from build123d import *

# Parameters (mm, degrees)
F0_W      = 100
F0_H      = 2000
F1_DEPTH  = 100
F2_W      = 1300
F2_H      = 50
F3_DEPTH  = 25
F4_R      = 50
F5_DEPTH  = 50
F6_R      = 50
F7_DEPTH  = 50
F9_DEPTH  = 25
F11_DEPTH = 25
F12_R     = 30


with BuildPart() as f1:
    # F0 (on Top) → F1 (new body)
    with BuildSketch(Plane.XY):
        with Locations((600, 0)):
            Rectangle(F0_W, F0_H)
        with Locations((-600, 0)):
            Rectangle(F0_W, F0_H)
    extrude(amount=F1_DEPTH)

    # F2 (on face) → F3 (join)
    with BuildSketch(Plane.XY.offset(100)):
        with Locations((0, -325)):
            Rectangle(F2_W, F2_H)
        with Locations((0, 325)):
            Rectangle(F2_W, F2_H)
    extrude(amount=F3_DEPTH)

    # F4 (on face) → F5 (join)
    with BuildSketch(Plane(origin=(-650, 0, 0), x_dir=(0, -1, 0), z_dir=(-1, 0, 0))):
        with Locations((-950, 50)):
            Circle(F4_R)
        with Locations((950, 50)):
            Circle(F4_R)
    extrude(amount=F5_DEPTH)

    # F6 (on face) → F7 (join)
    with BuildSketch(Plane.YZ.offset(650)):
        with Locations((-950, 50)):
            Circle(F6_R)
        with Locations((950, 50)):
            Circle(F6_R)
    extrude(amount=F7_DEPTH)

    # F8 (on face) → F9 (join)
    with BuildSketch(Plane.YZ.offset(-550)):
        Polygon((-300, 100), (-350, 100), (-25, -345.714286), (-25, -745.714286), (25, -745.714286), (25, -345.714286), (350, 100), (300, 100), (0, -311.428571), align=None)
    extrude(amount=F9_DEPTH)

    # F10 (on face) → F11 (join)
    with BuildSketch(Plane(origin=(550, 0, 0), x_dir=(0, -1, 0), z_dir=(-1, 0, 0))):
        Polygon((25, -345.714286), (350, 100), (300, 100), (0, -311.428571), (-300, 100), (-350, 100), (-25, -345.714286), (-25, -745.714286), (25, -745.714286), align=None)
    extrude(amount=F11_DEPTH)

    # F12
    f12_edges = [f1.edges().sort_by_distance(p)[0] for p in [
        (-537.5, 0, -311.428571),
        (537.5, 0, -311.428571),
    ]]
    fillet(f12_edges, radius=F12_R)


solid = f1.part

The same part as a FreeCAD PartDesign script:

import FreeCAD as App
import Part
import Sketcher

V = App.Vector
Q = App.Units.Quantity


def edges_at(feature, points):
    """Names of the edges that pass closest to the given points."""
    edges = feature.Shape.Edges
    near = lambda p: min(range(len(edges)), key=lambda i: edges[i].distToShape(Part.Vertex(*p))[0])
    return sorted({f"Edge{near(p) + 1}" for p in points})

doc = App.newDocument("Part")
params = doc.addObject("Spreadsheet::Sheet", "Params")
for row, (alias, value) in enumerate([
    ("sketch1_width", "100 mm"),
    ("sketch1_height", "2000 mm"),
    ("pad1_length", "100 mm"),
    ("sketch2_width", "1300 mm"),
    ("sketch2_height", "50 mm"),
    ("pad2_length", "25 mm"),
    ("sketch3_diameter", "100 mm"),
    ("pad3_length", "50 mm"),
    ("sketch4_diameter", "100 mm"),
    ("pad4_length", "50 mm"),
    ("sketch5_width", "50 mm"),
    ("sketch5_height", "400 mm"),
    ("pad5_length", "25 mm"),
    ("sketch6_width", "50 mm"),
    ("sketch6_height", "400 mm"),
    ("pad6_length", "25 mm"),
    ("fillet_radius", "30 mm"),
], start=1):
    params.set(f"A{row}", alias)
    params.set(f"B{row}", "=" + value)
    params.setAlias(f"B{row}", alias)

body = doc.addObject("PartDesign::Body", "Body")
body.AllowCompound = True

sketch1 = body.newObject("Sketcher::SketchObject", "Sketch")
sketch1.AttachmentSupport = (doc.getObject("XY_Plane"), [""])
sketch1.MapMode = "FlatFace"
sketch1.addGeometry(Part.LineSegment(V(550, 1000, 0), V(550, -1000, 0)), False)
sketch1.addGeometry(Part.LineSegment(V(550, -1000, 0), V(650, -1000, 0)), False)
sketch1.addGeometry(Part.LineSegment(V(650, -1000, 0), V(650, 1000, 0)), False)
sketch1.addGeometry(Part.LineSegment(V(650, 1000, 0), V(550, 1000, 0)), False)
sketch1.addGeometry(Part.LineSegment(V(-650, 1000, 0), V(-650, -1000, 0)), False)
sketch1.addGeometry(Part.LineSegment(V(-650, -1000, 0), V(-550, -1000, 0)), False)
sketch1.addGeometry(Part.LineSegment(V(-550, -1000, 0), V(-550, 1000, 0)), False)
sketch1.addGeometry(Part.LineSegment(V(-550, 1000, 0), V(-650, 1000, 0)), False)
sketch1.addConstraint(Sketcher.Constraint("Coincident", 0, 2, 1, 1))
sketch1.addConstraint(Sketcher.Constraint("Coincident", 1, 2, 2, 1))
sketch1.addConstraint(Sketcher.Constraint("Coincident", 2, 2, 3, 1))
sketch1.addConstraint(Sketcher.Constraint("Coincident", 3, 2, 0, 1))
sketch1.addConstraint(Sketcher.Constraint("Coincident", 4, 2, 5, 1))
sketch1.addConstraint(Sketcher.Constraint("Coincident", 5, 2, 6, 1))
sketch1.addConstraint(Sketcher.Constraint("Coincident", 6, 2, 7, 1))
sketch1.addConstraint(Sketcher.Constraint("Coincident", 7, 2, 4, 1))
sketch1.addConstraint(Sketcher.Constraint("Vertical", 0))
sketch1.addConstraint(Sketcher.Constraint("Horizontal", 1))
sketch1.addConstraint(Sketcher.Constraint("Vertical", 2))
sketch1.addConstraint(Sketcher.Constraint("Horizontal", 3))
sketch1.addConstraint(Sketcher.Constraint("Vertical", 4))
sketch1.addConstraint(Sketcher.Constraint("Horizontal", 5))
sketch1.addConstraint(Sketcher.Constraint("Vertical", 6))
sketch1.addConstraint(Sketcher.Constraint("Horizontal", 7))
sketch1.addConstraint(Sketcher.Constraint("Symmetric", 2, 2, 4, 2, -1, 1))
sketch1.addConstraint(Sketcher.Constraint("Symmetric", 0, 2, 6, 2, -1, 1))
sketch1.addConstraint(Sketcher.Constraint("Horizontal", 1, 2, 4, 2))
sketch1.addConstraint(Sketcher.Constraint("DistanceX", 1, 1, 1, 2, Q("100 mm")))
sketch1.addConstraint(Sketcher.Constraint("DistanceY", 0, 2, 0, 1, Q("2000 mm")))
sketch1.addConstraint(Sketcher.Constraint("DistanceX", -1, 1, 0, 2, Q("550 mm")))
sketch1.setExpression("Constraints[19]", "Params.sketch1_width")
sketch1.setExpression("Constraints[20]", "Params.sketch1_height")
pad1 = body.newObject("PartDesign::Pad", "Pad")
pad1.Profile = sketch1
pad1.setExpression("Length", "Params.pad1_length")

sketch2 = body.newObject("Sketcher::SketchObject", "Sketch001")
sketch2.AttachmentSupport = (doc.getObject("XY_Plane"), [""])
sketch2.MapMode = "FlatFace"
sketch2.AttachmentOffset = App.Placement(V(0, 0, 100), App.Rotation())
sketch2.addGeometry(Part.LineSegment(V(-650, -300, 0), V(-650, -350, 0)), False)
sketch2.addGeometry(Part.LineSegment(V(-650, -350, 0), V(650, -350, 0)), False)
sketch2.addGeometry(Part.LineSegment(V(650, -350, 0), V(650, -300, 0)), False)
sketch2.addGeometry(Part.LineSegment(V(650, -300, 0), V(-650, -300, 0)), False)
sketch2.addGeometry(Part.LineSegment(V(-650, 350, 0), V(-650, 300, 0)), False)
sketch2.addGeometry(Part.LineSegment(V(-650, 300, 0), V(650, 300, 0)), False)
sketch2.addGeometry(Part.LineSegment(V(650, 300, 0), V(650, 350, 0)), False)
sketch2.addGeometry(Part.LineSegment(V(650, 350, 0), V(-650, 350, 0)), False)
sketch2.addConstraint(Sketcher.Constraint("Coincident", 0, 2, 1, 1))
sketch2.addConstraint(Sketcher.Constraint("Coincident", 1, 2, 2, 1))
sketch2.addConstraint(Sketcher.Constraint("Coincident", 2, 2, 3, 1))
sketch2.addConstraint(Sketcher.Constraint("Coincident", 3, 2, 0, 1))
sketch2.addConstraint(Sketcher.Constraint("Coincident", 4, 2, 5, 1))
sketch2.addConstraint(Sketcher.Constraint("Coincident", 5, 2, 6, 1))
sketch2.addConstraint(Sketcher.Constraint("Coincident", 6, 2, 7, 1))
sketch2.addConstraint(Sketcher.Constraint("Coincident", 7, 2, 4, 1))
sketch2.addConstraint(Sketcher.Constraint("Vertical", 0))
sketch2.addConstraint(Sketcher.Constraint("Horizontal", 1))
sketch2.addConstraint(Sketcher.Constraint("Vertical", 2))
sketch2.addConstraint(Sketcher.Constraint("Horizontal", 3))
sketch2.addConstraint(Sketcher.Constraint("Vertical", 4))
sketch2.addConstraint(Sketcher.Constraint("Horizontal", 5))
sketch2.addConstraint(Sketcher.Constraint("Vertical", 6))
sketch2.addConstraint(Sketcher.Constraint("Horizontal", 7))
sketch2.addConstraint(Sketcher.Constraint("Symmetric", 2, 2, 4, 2, -1, 1))
sketch2.addConstraint(Sketcher.Constraint("Symmetric", 0, 2, 6, 2, -1, 1))
sketch2.addConstraint(Sketcher.Constraint("Vertical", 3, 2, 4, 2))
sketch2.addConstraint(Sketcher.Constraint("DistanceX", 1, 1, 1, 2, Q("1300 mm")))
sketch2.addConstraint(Sketcher.Constraint("DistanceY", 0, 2, 0, 1, Q("50 mm")))
sketch2.addConstraint(Sketcher.Constraint("DistanceY", 0, 2, -1, 1, Q("350 mm")))
sketch2.setExpression("Constraints[19]", "Params.sketch2_width")
sketch2.setExpression("Constraints[20]", "Params.sketch2_height")
pad2 = body.newObject("PartDesign::Pad", "Pad001")
pad2.Profile = sketch2
pad2.setExpression("Length", "Params.pad2_length")

sketch3 = body.newObject("Sketcher::SketchObject", "Sketch002")
sketch3.AttachmentSupport = (doc.getObject("YZ_Plane"), [""])
sketch3.MapMode = "FlatFace"
sketch3.AttachmentOffset = App.Placement(V(0, 0, -650), App.Rotation())
sketch3.addGeometry(Part.Circle(V(950, 50, 0), V(0, 0, 1), 50), False)
sketch3.addGeometry(Part.Circle(V(-950, 50, 0), V(0, 0, 1), 50), False)
sketch3.addConstraint(Sketcher.Constraint("Equal", 0, 1))
sketch3.addConstraint(Sketcher.Constraint("Symmetric", 0, 3, 1, 3, -2))
sketch3.addConstraint(Sketcher.Constraint("Diameter", 0, Q("100 mm")))
sketch3.addConstraint(Sketcher.Constraint("DistanceX", -1, 1, 0, 3, Q("950 mm")))
sketch3.addConstraint(Sketcher.Constraint("DistanceY", -1, 1, 0, 3, Q("50 mm")))
sketch3.setExpression("Constraints[2]", "Params.sketch3_diameter")
pad3 = body.newObject("PartDesign::Pad", "Pad002")
pad3.Profile = sketch3
pad3.setExpression("Length", "Params.pad3_length")
pad3.Reversed = True

sketch4 = body.newObject("Sketcher::SketchObject", "Sketch003")
sketch4.AttachmentSupport = (doc.getObject("YZ_Plane"), [""])
sketch4.MapMode = "FlatFace"
sketch4.AttachmentOffset = App.Placement(V(0, 0, 650), App.Rotation())
sketch4.addGeometry(Part.Circle(V(-950, 50, 0), V(0, 0, 1), 50), False)
sketch4.addGeometry(Part.Circle(V(950, 50, 0), V(0, 0, 1), 50), False)
sketch4.addConstraint(Sketcher.Constraint("Equal", 0, 1))
sketch4.addConstraint(Sketcher.Constraint("Symmetric", 0, 3, 1, 3, -2))
sketch4.addConstraint(Sketcher.Constraint("Diameter", 0, Q("100 mm")))
sketch4.addConstraint(Sketcher.Constraint("DistanceX", 0, 3, -1, 1, Q("950 mm")))
sketch4.addConstraint(Sketcher.Constraint("DistanceY", -1, 1, 0, 3, Q("50 mm")))
sketch4.setExpression("Constraints[2]", "Params.sketch4_diameter")
pad4 = body.newObject("PartDesign::Pad", "Pad003")
pad4.Profile = sketch4
pad4.setExpression("Length", "Params.pad4_length")

sketch5 = body.newObject("Sketcher::SketchObject", "Sketch004")
sketch5.AttachmentSupport = (doc.getObject("YZ_Plane"), [""])
sketch5.MapMode = "FlatFace"
sketch5.AttachmentOffset = App.Placement(V(0, 0, -550), App.Rotation())
sketch5.addGeometry(Part.LineSegment(V(-300, 100, 0), V(-350, 100, 0)), False)
sketch5.addGeometry(Part.LineSegment(V(-350, 100, 0), V(-25, -345.714286, 0)), False)
sketch5.addGeometry(Part.LineSegment(V(-25, -345.714286, 0), V(-25, -745.714286, 0)), False)
sketch5.addGeometry(Part.LineSegment(V(-25, -745.714286, 0), V(25, -745.714286, 0)), False)
sketch5.addGeometry(Part.LineSegment(V(25, -745.714286, 0), V(25, -345.714286, 0)), False)
sketch5.addGeometry(Part.LineSegment(V(25, -345.714286, 0), V(350, 100, 0)), False)
sketch5.addGeometry(Part.LineSegment(V(350, 100, 0), V(300, 100, 0)), False)
sketch5.addGeometry(Part.LineSegment(V(300, 100, 0), V(0, -311.428571, 0)), False)
sketch5.addGeometry(Part.LineSegment(V(0, -311.428571, 0), V(-300, 100, 0)), False)
sketch5.addConstraint(Sketcher.Constraint("Coincident", 0, 2, 1, 1))
sketch5.addConstraint(Sketcher.Constraint("Coincident", 1, 2, 2, 1))
sketch5.addConstraint(Sketcher.Constraint("Coincident", 2, 2, 3, 1))
sketch5.addConstraint(Sketcher.Constraint("Coincident", 3, 2, 4, 1))
sketch5.addConstraint(Sketcher.Constraint("Coincident", 4, 2, 5, 1))
sketch5.addConstraint(Sketcher.Constraint("Coincident", 5, 2, 6, 1))
sketch5.addConstraint(Sketcher.Constraint("Coincident", 6, 2, 7, 1))
sketch5.addConstraint(Sketcher.Constraint("Coincident", 7, 2, 8, 1))
sketch5.addConstraint(Sketcher.Constraint("Coincident", 8, 2, 0, 1))
sketch5.addConstraint(Sketcher.Constraint("Horizontal", 0))
sketch5.addConstraint(Sketcher.Constraint("Vertical", 2))
sketch5.addConstraint(Sketcher.Constraint("Horizontal", 3))
sketch5.addConstraint(Sketcher.Constraint("Vertical", 4))
sketch5.addConstraint(Sketcher.Constraint("Horizontal", 6))
sketch5.addConstraint(Sketcher.Constraint("Symmetric", 1, 2, 4, 2, -2))
sketch5.addConstraint(Sketcher.Constraint("Symmetric", 0, 2, 5, 2, -2))
sketch5.addConstraint(Sketcher.Constraint("PointOnObject", 7, 2, -2))
sketch5.addConstraint(Sketcher.Constraint("Parallel", 5, 7))
sketch5.addConstraint(Sketcher.Constraint("Parallel", 1, 8))
sketch5.addConstraint(Sketcher.Constraint("Equal", 0, 3))
sketch5.addConstraint(Sketcher.Constraint("DistanceX", 0, 2, 0, 1, Q("50 mm")))
sketch5.addConstraint(Sketcher.Constraint("DistanceY", 2, 2, 2, 1, Q("400 mm")))
sketch5.addConstraint(Sketcher.Constraint("DistanceX", 0, 2, -1, 1, Q("350 mm")))
sketch5.addConstraint(Sketcher.Constraint("DistanceY", -1, 1, 0, 2, Q("100 mm")))
sketch5.addConstraint(Sketcher.Constraint("Distance", 1, Q("551.621451 mm")))
sketch5.setExpression("Constraints[20]", "Params.sketch5_width")
sketch5.setExpression("Constraints[21]", "Params.sketch5_height")
pad5 = body.newObject("PartDesign::Pad", "Pad004")
pad5.Profile = sketch5
pad5.setExpression("Length", "Params.pad5_length")

sketch6 = body.newObject("Sketcher::SketchObject", "Sketch005")
sketch6.AttachmentSupport = (doc.getObject("YZ_Plane"), [""])
sketch6.MapMode = "FlatFace"
sketch6.AttachmentOffset = App.Placement(V(0, 0, 550), App.Rotation())
sketch6.addGeometry(Part.LineSegment(V(-25, -345.714286, 0), V(-350, 100, 0)), False)
sketch6.addGeometry(Part.LineSegment(V(-350, 100, 0), V(-300, 100, 0)), False)
sketch6.addGeometry(Part.LineSegment(V(-300, 100, 0), V(0, -311.428571, 0)), False)
sketch6.addGeometry(Part.LineSegment(V(0, -311.428571, 0), V(300, 100, 0)), False)
sketch6.addGeometry(Part.LineSegment(V(300, 100, 0), V(350, 100, 0)), False)
sketch6.addGeometry(Part.LineSegment(V(350, 100, 0), V(25, -345.714286, 0)), False)
sketch6.addGeometry(Part.LineSegment(V(25, -345.714286, 0), V(25, -745.714286, 0)), False)
sketch6.addGeometry(Part.LineSegment(V(25, -745.714286, 0), V(-25, -745.714286, 0)), False)
sketch6.addGeometry(Part.LineSegment(V(-25, -745.714286, 0), V(-25, -345.714286, 0)), False)
sketch6.addConstraint(Sketcher.Constraint("Coincident", 0, 2, 1, 1))
sketch6.addConstraint(Sketcher.Constraint("Coincident", 1, 2, 2, 1))
sketch6.addConstraint(Sketcher.Constraint("Coincident", 2, 2, 3, 1))
sketch6.addConstraint(Sketcher.Constraint("Coincident", 3, 2, 4, 1))
sketch6.addConstraint(Sketcher.Constraint("Coincident", 4, 2, 5, 1))
sketch6.addConstraint(Sketcher.Constraint("Coincident", 5, 2, 6, 1))
sketch6.addConstraint(Sketcher.Constraint("Coincident", 6, 2, 7, 1))
sketch6.addConstraint(Sketcher.Constraint("Coincident", 7, 2, 8, 1))
sketch6.addConstraint(Sketcher.Constraint("Coincident", 8, 2, 0, 1))
sketch6.addConstraint(Sketcher.Constraint("Horizontal", 1))
sketch6.addConstraint(Sketcher.Constraint("Horizontal", 4))
sketch6.addConstraint(Sketcher.Constraint("Vertical", 6))
sketch6.addConstraint(Sketcher.Constraint("Horizontal", 7))
sketch6.addConstraint(Sketcher.Constraint("Vertical", 8))
sketch6.addConstraint(Sketcher.Constraint("Symmetric", 1, 2, 3, 2, -2))
sketch6.addConstraint(Sketcher.Constraint("Symmetric", 5, 2, 8, 2, -2))
sketch6.addConstraint(Sketcher.Constraint("PointOnObject", 2, 2, -2))
sketch6.addConstraint(Sketcher.Constraint("Parallel", 0, 2))
sketch6.addConstraint(Sketcher.Constraint("Parallel", 3, 5))
sketch6.addConstraint(Sketcher.Constraint("Equal", 4, 7))
sketch6.addConstraint(Sketcher.Constraint("DistanceX", 1, 1, 1, 2, Q("50 mm")))
sketch6.addConstraint(Sketcher.Constraint("DistanceY", 6, 2, 6, 1, Q("400 mm")))
sketch6.addConstraint(Sketcher.Constraint("DistanceX", 0, 2, -1, 1, Q("350 mm")))
sketch6.addConstraint(Sketcher.Constraint("DistanceY", -1, 1, 0, 2, Q("100 mm")))
sketch6.addConstraint(Sketcher.Constraint("Distance", 0, Q("551.621451 mm")))
sketch6.setExpression("Constraints[20]", "Params.sketch6_width")
sketch6.setExpression("Constraints[21]", "Params.sketch6_height")
pad6 = body.newObject("PartDesign::Pad", "Pad005")
pad6.Profile = sketch6
pad6.setExpression("Length", "Params.pad6_length")
pad6.Reversed = True
doc.recompute()

fillet = body.newObject("PartDesign::Fillet", "Fillet")
fillet.Base = (pad6, edges_at(pad6, [(-537.5, 0, -311.429), (537.5, 0, -311.429)]))
fillet.setExpression("Radius", "Params.fillet_radius")

doc.recompute()
